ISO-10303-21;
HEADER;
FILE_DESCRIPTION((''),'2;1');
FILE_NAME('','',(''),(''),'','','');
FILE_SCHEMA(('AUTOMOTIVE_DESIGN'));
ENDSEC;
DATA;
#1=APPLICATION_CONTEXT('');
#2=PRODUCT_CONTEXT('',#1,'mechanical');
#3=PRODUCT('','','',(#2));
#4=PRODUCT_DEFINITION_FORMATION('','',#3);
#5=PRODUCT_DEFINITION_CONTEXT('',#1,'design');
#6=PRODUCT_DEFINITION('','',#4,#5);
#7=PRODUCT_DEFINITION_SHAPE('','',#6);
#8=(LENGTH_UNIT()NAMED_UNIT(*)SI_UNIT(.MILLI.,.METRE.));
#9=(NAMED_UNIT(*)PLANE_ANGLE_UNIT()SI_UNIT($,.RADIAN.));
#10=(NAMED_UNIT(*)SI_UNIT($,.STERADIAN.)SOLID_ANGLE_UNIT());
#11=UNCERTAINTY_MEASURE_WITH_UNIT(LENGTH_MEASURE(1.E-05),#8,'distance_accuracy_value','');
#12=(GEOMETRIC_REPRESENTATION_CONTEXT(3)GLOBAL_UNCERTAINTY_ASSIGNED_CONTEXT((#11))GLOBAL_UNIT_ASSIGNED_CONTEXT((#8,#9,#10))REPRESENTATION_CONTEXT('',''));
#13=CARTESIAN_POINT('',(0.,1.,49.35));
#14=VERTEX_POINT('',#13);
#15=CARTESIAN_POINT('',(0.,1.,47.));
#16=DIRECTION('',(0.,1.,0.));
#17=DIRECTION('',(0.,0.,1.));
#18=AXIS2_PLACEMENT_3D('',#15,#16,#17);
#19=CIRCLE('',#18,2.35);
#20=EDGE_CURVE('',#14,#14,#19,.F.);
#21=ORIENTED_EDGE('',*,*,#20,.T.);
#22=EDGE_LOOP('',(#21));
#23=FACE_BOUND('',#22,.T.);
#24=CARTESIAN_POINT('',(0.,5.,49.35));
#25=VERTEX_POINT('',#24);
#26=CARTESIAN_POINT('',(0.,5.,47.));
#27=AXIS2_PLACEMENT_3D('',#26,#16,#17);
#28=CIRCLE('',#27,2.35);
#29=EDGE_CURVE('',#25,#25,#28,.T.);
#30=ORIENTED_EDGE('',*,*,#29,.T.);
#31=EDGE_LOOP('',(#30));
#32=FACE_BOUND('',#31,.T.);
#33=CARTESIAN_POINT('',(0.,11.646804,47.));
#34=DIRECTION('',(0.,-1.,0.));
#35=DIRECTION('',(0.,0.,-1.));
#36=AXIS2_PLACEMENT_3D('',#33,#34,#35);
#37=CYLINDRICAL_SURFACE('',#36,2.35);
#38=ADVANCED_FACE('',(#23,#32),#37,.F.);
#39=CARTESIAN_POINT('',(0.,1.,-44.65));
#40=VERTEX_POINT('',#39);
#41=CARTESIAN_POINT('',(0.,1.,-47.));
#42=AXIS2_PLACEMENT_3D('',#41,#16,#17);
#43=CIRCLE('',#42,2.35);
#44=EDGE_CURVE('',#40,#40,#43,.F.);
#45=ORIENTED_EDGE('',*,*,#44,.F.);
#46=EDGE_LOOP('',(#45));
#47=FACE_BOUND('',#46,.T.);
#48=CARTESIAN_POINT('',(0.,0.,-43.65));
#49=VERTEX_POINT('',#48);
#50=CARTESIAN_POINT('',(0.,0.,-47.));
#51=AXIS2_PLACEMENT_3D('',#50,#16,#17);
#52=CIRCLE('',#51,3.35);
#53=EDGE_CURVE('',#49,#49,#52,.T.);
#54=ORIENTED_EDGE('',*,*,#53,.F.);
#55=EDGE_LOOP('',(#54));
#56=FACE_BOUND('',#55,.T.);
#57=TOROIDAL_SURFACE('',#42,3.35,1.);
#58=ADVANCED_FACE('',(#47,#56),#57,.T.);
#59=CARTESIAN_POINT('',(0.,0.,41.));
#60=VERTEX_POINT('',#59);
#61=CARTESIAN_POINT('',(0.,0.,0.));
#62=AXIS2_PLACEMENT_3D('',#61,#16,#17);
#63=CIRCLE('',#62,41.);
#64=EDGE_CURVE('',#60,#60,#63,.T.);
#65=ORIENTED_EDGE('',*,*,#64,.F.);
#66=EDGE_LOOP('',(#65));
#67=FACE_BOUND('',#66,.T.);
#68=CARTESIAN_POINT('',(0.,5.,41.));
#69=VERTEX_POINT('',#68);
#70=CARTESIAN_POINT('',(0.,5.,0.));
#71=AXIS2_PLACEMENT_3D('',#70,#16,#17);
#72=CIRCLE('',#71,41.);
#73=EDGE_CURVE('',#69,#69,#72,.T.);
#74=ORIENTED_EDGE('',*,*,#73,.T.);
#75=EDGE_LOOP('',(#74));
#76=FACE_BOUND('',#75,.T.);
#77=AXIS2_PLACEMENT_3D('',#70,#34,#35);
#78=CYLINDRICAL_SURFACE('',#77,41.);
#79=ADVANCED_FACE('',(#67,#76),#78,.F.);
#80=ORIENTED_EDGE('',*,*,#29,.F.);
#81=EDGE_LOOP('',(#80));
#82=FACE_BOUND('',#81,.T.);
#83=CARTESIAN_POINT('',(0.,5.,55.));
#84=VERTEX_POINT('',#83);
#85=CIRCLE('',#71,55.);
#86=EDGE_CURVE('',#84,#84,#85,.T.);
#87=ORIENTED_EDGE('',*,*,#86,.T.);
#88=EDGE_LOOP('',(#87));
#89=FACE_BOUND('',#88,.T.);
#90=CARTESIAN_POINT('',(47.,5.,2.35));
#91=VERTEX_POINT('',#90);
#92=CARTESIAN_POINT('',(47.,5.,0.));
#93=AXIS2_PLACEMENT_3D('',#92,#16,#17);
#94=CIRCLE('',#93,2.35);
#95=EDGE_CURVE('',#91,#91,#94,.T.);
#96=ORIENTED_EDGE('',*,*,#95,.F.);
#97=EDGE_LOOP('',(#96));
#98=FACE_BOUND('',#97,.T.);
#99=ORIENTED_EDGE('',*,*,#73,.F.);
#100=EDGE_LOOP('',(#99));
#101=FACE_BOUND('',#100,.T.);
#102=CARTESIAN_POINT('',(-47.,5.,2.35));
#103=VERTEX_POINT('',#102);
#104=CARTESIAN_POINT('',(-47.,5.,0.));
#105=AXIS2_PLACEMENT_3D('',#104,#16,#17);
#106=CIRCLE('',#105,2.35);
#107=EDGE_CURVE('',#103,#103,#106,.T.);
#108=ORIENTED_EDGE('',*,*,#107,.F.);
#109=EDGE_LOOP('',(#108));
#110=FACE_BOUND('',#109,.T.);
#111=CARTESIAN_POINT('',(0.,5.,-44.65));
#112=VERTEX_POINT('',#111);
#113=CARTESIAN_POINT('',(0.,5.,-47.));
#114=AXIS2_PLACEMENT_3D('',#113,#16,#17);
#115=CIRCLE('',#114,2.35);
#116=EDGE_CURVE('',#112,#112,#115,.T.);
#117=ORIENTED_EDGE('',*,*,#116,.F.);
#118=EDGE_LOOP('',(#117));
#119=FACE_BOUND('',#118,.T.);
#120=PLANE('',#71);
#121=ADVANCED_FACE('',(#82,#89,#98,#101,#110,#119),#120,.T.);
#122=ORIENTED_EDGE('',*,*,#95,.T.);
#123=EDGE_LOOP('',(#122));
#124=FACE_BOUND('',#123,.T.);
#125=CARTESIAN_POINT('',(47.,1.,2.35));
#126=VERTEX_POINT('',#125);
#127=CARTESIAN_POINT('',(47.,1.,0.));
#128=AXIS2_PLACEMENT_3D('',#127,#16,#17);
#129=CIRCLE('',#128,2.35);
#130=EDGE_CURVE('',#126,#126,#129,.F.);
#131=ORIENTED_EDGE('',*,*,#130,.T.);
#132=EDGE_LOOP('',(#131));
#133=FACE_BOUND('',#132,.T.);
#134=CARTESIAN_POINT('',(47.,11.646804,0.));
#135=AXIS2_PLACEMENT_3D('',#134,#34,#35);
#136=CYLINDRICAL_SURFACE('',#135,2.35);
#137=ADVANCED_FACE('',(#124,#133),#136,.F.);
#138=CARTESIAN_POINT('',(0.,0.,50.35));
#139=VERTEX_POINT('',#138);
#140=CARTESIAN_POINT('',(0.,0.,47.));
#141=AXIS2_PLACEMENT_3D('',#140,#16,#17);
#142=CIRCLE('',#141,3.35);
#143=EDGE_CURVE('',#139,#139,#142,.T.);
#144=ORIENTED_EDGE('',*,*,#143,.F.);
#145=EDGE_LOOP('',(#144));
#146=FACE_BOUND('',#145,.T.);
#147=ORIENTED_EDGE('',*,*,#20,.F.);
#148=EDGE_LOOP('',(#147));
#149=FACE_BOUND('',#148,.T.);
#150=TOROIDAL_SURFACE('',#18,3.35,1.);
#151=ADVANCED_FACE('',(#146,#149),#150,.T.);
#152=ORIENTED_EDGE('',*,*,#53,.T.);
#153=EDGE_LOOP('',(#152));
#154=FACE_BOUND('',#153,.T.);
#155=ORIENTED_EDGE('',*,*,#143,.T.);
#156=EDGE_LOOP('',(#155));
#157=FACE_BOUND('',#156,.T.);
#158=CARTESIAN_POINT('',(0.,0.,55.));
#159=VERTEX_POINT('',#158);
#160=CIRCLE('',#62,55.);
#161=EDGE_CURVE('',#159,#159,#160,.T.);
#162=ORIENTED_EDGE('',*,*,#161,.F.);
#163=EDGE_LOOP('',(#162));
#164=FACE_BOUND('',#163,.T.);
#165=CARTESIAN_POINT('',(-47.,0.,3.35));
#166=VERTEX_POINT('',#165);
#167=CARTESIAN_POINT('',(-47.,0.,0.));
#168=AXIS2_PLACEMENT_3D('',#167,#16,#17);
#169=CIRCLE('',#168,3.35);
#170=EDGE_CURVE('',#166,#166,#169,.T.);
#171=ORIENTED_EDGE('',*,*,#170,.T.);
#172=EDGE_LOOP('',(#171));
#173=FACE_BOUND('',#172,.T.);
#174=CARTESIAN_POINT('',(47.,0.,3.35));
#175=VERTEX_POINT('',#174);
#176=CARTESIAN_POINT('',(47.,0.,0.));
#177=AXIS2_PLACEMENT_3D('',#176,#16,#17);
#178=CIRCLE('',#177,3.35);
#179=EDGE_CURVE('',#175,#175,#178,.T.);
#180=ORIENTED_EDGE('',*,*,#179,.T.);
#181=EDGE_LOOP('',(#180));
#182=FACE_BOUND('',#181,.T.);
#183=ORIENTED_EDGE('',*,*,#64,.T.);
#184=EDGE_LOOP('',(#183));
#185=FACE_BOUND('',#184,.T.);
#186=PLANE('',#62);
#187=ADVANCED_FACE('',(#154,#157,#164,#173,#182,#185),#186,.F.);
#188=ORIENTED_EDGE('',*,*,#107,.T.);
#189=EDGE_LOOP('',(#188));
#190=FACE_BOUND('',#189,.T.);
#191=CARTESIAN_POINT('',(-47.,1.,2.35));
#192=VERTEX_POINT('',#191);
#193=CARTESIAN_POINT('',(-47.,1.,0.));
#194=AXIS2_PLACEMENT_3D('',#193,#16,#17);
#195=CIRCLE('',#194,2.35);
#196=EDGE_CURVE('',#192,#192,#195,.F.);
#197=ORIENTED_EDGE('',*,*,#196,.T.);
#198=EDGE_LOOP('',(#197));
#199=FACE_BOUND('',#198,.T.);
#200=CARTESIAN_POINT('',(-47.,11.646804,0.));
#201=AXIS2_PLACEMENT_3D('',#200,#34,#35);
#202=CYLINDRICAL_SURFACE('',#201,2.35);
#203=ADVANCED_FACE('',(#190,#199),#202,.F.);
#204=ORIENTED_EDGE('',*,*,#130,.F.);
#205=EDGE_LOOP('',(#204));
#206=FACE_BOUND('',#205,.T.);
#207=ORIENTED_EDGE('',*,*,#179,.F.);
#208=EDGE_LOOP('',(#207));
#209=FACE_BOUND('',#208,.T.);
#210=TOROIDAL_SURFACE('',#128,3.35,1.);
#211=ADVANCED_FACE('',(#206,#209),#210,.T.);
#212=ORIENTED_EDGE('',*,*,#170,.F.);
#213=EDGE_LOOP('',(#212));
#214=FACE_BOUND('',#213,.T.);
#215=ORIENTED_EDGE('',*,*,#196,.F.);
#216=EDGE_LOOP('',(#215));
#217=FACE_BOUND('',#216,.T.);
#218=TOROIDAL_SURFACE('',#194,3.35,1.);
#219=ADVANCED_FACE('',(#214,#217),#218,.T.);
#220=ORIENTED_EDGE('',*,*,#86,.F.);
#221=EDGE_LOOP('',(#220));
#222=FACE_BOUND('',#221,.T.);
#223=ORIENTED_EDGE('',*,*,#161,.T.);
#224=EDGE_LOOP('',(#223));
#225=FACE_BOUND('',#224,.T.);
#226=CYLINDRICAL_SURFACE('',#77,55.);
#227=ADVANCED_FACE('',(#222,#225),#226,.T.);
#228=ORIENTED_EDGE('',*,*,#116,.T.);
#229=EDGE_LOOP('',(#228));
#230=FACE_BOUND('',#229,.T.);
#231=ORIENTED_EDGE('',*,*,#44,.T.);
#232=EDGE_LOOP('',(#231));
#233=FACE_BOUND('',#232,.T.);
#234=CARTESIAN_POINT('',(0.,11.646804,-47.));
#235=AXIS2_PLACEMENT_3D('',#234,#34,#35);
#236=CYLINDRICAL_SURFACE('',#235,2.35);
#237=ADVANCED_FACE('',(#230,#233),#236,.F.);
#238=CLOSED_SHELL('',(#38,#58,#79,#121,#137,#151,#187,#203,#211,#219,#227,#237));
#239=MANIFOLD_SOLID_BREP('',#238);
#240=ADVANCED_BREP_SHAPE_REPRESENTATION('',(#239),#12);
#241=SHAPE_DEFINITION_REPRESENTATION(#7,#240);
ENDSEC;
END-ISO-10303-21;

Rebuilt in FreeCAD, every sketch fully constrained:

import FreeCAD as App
import Part
import Sketcher
from FreeCAD import Vector


def edges_at(feature, points):
    """Names of the edges that pass closest to the given points."""
    edges = feature.Shape.Edges
    near = lambda p: min(range(len(edges)), key=lambda i: edges[i].distToShape(Part.Vertex(*p))[0])
    return sorted({f"Edge{near(p) + 1}" for p in points})

doc = App.newDocument("Part")
params = doc.addObject("Spreadsheet::Sheet", "Params")
for row, (alias, value) in enumerate([
    ("sketch1_diameter", "110 mm"),
    ("sketch1_diameter2", "82 mm"),
    ("pad1_length", "5 mm"),
    ("sketch2_diameter", "4.7 mm"),
    ("pocket1_length", "5 mm"),
    ("fillet_radius", "1 mm"),
], start=1):
    params.set(f"A{row}", alias)
    params.set(f"B{row}", "=" + value)
    params.setAlias(f"B{row}", alias)

body = doc.addObject("PartDesign::Body", "Body")

# Sketch on XZ plane
sketch1 = body.newObject("Sketcher::SketchObject", "Sketch")
sketch1.AttachmentSupport = (doc.getObject("XZ_Plane"), [""])
sketch1.MapMode = "FlatFace"
sketch1.addGeometry(Part.Circle(Vector(0, 0, 0), Vector(0, 0, 1), 55), False)
sketch1.addGeometry(Part.Circle(Vector(0, 0, 0), Vector(0, 0, 1), 41), False)
sketch1.addConstraint(Sketcher.Constraint("Coincident", 0, 3, -1, 1))
sketch1.addConstraint(Sketcher.Constraint("Coincident", 1, 3, -1, 1))
sketch1.addConstraint(Sketcher.Constraint("Diameter", 0, 110.0))
sketch1.addConstraint(Sketcher.Constraint("Diameter", 1, 82.0))
sketch1.setExpression("Constraints[2]", "Params.sketch1_diameter")
sketch1.setExpression("Constraints[3]", "Params.sketch1_diameter2")
pad1 = body.newObject("PartDesign::Pad", "Pad")
pad1.Profile = sketch1
pad1.setExpression("Length", "Params.pad1_length")
pad1.Reversed = True

# Sketch on XZ plane
sketch2 = body.newObject("Sketcher::SketchObject", "Sketch001")
sketch2.AttachmentSupport = (doc.getObject("XZ_Plane"), [""])
sketch2.MapMode = "FlatFace"
sketch2.addGeometry(Part.Circle(Vector(0, 47, 0), Vector(0, 0, 1), 2.4), False)
sketch2.addGeometry(Part.Circle(Vector(-47, 0, 0), Vector(0, 0, 1), 2.4), False)
sketch2.addGeometry(Part.Circle(Vector(0, -47, 0), Vector(0, 0, 1), 2.4), False)
sketch2.addGeometry(Part.Circle(Vector(47, 0, 0), Vector(0, 0, 1), 2.4), False)
sketch2.addConstraint(Sketcher.Constraint("Equal", 0, 1))
sketch2.addConstraint(Sketcher.Constraint("Equal", 1, 2))
sketch2.addConstraint(Sketcher.Constraint("Equal", 2, 3))
sketch2.addConstraint(Sketcher.Constraint("Symmetric", 0, 3, 2, 3, -1, 1))
sketch2.addConstraint(Sketcher.Constraint("Symmetric", 1, 3, 3, 3, -1, 1))
sketch2.addConstraint(Sketcher.Constraint("PointOnObject", 0, 3, -2))
sketch2.addConstraint(Sketcher.Constraint("PointOnObject", 1, 3, -1))
sketch2.addConstraint(Sketcher.Constraint("Diameter", 0, 4.7))
sketch2.addConstraint(Sketcher.Constraint("DistanceY", -1, 1, 0, 3, 47.0))
sketch2.addConstraint(Sketcher.Constraint("DistanceX", 1, 3, -1, 1, 47.0))
sketch2.setExpression("Constraints[7]", "Params.sketch2_diameter")
pocket1 = body.newObject("PartDesign::Pocket", "Pocket")
pocket1.Profile = sketch2
pocket1.setExpression("Length", "Params.pocket1_length")
doc.recompute()

fillet = body.newObject("PartDesign::Fillet", "Fillet")
fillet.Base = (pocket1, edges_at(pocket1, [
    (0, 0, 44.65),
    (0, 0, -49.35),
    (-47, 0, -2.35),
    (47, 0, -2.35),
]))
fillet.setExpression("Radius", "Params.fillet_radius")

doc.recompute()
